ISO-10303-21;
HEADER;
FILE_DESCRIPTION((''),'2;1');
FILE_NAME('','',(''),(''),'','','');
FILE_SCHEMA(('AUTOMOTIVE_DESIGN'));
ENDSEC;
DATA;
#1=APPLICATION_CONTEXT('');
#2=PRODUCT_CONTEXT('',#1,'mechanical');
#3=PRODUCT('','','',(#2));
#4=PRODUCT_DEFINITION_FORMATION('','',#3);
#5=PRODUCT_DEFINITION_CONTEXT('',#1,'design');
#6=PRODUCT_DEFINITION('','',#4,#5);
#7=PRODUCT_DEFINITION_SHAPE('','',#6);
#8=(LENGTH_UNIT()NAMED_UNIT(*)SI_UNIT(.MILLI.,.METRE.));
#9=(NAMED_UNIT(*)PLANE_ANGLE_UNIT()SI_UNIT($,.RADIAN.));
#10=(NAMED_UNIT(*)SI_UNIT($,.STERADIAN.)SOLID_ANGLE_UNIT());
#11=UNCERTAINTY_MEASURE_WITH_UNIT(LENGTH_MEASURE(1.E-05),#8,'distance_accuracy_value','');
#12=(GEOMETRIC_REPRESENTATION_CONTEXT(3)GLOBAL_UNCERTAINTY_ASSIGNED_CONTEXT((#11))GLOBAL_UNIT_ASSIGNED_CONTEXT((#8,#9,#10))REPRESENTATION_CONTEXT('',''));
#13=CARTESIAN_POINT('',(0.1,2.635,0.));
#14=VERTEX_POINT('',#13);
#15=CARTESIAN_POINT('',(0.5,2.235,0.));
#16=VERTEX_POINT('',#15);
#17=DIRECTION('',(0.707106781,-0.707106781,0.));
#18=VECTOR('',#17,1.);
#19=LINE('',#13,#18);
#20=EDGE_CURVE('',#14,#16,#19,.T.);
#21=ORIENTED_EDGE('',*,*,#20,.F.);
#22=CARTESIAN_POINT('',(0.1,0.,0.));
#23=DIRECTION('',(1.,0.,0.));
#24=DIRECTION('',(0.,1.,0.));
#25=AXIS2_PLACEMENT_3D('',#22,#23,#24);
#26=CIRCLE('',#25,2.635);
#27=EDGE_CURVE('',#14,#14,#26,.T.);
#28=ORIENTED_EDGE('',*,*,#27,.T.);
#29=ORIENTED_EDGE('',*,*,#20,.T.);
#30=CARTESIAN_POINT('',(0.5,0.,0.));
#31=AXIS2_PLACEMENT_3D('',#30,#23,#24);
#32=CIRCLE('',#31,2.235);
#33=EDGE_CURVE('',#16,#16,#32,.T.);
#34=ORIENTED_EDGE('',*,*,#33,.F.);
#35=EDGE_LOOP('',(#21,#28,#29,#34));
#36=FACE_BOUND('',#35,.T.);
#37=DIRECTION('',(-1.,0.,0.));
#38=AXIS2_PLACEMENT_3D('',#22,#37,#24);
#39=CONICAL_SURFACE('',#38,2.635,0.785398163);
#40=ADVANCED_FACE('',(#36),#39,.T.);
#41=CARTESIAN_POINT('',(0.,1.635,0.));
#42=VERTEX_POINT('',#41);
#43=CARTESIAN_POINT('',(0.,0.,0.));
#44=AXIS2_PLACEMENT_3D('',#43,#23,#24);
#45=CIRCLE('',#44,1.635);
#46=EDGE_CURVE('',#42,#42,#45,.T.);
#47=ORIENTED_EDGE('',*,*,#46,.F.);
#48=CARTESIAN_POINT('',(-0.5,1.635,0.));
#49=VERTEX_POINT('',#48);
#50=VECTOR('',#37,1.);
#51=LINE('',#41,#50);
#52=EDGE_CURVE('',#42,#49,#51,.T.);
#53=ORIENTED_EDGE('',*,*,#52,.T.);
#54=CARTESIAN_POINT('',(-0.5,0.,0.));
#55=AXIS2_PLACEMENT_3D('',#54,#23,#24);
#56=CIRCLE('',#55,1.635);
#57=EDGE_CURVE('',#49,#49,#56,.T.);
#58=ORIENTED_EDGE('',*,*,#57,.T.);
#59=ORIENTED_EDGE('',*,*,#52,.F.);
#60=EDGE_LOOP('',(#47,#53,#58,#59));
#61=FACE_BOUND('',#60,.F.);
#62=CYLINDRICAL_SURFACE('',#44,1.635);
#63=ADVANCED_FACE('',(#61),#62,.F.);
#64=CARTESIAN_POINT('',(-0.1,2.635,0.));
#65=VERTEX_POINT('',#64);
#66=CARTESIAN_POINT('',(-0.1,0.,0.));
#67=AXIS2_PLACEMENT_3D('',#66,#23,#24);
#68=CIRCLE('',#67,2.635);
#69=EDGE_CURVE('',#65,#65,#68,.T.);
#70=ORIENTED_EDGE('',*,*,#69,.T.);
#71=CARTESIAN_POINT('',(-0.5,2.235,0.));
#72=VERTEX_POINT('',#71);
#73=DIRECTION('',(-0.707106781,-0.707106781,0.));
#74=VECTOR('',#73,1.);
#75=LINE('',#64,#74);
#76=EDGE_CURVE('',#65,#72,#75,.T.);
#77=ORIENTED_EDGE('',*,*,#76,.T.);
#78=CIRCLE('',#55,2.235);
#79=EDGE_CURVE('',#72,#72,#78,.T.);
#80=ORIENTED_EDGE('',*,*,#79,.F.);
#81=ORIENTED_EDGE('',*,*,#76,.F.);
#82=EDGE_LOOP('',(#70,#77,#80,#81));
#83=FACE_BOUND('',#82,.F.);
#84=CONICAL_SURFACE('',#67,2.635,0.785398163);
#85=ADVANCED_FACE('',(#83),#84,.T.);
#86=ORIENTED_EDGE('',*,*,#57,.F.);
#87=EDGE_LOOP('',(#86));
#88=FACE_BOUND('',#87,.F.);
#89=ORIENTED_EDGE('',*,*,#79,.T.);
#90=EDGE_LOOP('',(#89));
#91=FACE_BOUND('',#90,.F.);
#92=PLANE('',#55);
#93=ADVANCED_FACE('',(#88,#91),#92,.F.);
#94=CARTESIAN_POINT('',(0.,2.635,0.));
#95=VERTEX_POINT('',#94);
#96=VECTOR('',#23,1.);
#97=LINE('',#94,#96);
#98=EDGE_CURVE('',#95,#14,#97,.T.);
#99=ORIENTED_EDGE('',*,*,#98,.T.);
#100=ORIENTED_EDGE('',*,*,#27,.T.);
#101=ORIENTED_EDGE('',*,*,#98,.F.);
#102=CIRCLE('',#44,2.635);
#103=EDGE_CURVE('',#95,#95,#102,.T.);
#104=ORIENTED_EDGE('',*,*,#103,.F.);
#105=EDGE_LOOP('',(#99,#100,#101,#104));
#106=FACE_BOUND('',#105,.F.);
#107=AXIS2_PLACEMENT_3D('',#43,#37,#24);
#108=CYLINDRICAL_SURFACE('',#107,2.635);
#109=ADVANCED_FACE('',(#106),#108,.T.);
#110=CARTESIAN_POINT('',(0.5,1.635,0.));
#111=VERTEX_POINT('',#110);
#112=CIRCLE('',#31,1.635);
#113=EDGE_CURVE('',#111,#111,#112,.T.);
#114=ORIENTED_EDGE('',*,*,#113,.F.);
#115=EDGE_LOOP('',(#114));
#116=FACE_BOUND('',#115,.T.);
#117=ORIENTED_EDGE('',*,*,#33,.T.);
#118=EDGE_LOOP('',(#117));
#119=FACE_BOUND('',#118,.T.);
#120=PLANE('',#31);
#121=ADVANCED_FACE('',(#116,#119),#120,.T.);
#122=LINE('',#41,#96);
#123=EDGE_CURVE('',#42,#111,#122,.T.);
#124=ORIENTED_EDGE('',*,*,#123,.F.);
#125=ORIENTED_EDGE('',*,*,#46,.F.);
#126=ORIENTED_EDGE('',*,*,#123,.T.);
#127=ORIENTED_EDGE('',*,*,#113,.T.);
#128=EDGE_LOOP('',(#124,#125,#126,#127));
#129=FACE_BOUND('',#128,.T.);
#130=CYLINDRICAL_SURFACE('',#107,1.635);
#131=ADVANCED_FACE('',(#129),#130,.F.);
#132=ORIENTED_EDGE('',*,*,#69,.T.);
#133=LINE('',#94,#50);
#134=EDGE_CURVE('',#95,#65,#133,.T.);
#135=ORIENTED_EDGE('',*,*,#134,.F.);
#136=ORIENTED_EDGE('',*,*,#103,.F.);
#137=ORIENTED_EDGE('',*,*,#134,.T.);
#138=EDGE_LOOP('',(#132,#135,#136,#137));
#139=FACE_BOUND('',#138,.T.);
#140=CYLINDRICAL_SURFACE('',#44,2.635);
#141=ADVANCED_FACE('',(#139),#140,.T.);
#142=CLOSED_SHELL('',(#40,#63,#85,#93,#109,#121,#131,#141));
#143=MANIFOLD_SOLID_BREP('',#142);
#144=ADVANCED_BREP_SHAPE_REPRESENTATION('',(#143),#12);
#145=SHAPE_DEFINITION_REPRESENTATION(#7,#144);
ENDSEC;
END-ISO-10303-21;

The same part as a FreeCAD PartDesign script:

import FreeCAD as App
import Part
import Sketcher

V = App.Vector


def edges_at(feature, points):
    """Names of the edges that pass closest to the given points."""
    edges = feature.Shape.Edges
    near = lambda p: min(range(len(edges)), key=lambda i: edges[i].distToShape(Part.Vertex(*p))[0])
    return sorted({f"Edge{near(p) + 1}" for p in points})

doc = App.newDocument("Part")
body = doc.addObject("PartDesign::Body", "Body")

sketch1 = body.newObject("Sketcher::SketchObject", "Sketch")
sketch1.AttachmentSupport = (doc.getObject("YZ_Plane"), [""])
sketch1.MapMode = "FlatFace"
sketch1.addGeometry(Part.Circle(V(0, 0, 0), V(0, 0, 1), 2.6), False)
sketch1.addGeometry(Part.Circle(V(0, 0, 0), V(0, 0, 1), 1.6), False)
sketch1.addConstraint(Sketcher.Constraint("Coincident", 0, 3, -1, 1))
sketch1.addConstraint(Sketcher.Constraint("Coincident", 1, 3, -1, 1))
sketch1.addConstraint(Sketcher.Constraint("Diameter", 1, 3.27))
sketch1.addConstraint(Sketcher.Constraint("Diameter", 0, 5.27))
pad1 = body.newObject("PartDesign::Pad", "Pad")
pad1.Profile = sketch1
pad1.Length = 1
pad1.Midplane = True
doc.recompute()

chamfer = body.newObject("PartDesign::Chamfer", "Chamfer")
chamfer.Base = (pad1, edges_at(pad1, [(0.5, -2.635, 0), (-0.5, -2.635, 0)]))
chamfer.Size = 0.4

doc.recompute()
